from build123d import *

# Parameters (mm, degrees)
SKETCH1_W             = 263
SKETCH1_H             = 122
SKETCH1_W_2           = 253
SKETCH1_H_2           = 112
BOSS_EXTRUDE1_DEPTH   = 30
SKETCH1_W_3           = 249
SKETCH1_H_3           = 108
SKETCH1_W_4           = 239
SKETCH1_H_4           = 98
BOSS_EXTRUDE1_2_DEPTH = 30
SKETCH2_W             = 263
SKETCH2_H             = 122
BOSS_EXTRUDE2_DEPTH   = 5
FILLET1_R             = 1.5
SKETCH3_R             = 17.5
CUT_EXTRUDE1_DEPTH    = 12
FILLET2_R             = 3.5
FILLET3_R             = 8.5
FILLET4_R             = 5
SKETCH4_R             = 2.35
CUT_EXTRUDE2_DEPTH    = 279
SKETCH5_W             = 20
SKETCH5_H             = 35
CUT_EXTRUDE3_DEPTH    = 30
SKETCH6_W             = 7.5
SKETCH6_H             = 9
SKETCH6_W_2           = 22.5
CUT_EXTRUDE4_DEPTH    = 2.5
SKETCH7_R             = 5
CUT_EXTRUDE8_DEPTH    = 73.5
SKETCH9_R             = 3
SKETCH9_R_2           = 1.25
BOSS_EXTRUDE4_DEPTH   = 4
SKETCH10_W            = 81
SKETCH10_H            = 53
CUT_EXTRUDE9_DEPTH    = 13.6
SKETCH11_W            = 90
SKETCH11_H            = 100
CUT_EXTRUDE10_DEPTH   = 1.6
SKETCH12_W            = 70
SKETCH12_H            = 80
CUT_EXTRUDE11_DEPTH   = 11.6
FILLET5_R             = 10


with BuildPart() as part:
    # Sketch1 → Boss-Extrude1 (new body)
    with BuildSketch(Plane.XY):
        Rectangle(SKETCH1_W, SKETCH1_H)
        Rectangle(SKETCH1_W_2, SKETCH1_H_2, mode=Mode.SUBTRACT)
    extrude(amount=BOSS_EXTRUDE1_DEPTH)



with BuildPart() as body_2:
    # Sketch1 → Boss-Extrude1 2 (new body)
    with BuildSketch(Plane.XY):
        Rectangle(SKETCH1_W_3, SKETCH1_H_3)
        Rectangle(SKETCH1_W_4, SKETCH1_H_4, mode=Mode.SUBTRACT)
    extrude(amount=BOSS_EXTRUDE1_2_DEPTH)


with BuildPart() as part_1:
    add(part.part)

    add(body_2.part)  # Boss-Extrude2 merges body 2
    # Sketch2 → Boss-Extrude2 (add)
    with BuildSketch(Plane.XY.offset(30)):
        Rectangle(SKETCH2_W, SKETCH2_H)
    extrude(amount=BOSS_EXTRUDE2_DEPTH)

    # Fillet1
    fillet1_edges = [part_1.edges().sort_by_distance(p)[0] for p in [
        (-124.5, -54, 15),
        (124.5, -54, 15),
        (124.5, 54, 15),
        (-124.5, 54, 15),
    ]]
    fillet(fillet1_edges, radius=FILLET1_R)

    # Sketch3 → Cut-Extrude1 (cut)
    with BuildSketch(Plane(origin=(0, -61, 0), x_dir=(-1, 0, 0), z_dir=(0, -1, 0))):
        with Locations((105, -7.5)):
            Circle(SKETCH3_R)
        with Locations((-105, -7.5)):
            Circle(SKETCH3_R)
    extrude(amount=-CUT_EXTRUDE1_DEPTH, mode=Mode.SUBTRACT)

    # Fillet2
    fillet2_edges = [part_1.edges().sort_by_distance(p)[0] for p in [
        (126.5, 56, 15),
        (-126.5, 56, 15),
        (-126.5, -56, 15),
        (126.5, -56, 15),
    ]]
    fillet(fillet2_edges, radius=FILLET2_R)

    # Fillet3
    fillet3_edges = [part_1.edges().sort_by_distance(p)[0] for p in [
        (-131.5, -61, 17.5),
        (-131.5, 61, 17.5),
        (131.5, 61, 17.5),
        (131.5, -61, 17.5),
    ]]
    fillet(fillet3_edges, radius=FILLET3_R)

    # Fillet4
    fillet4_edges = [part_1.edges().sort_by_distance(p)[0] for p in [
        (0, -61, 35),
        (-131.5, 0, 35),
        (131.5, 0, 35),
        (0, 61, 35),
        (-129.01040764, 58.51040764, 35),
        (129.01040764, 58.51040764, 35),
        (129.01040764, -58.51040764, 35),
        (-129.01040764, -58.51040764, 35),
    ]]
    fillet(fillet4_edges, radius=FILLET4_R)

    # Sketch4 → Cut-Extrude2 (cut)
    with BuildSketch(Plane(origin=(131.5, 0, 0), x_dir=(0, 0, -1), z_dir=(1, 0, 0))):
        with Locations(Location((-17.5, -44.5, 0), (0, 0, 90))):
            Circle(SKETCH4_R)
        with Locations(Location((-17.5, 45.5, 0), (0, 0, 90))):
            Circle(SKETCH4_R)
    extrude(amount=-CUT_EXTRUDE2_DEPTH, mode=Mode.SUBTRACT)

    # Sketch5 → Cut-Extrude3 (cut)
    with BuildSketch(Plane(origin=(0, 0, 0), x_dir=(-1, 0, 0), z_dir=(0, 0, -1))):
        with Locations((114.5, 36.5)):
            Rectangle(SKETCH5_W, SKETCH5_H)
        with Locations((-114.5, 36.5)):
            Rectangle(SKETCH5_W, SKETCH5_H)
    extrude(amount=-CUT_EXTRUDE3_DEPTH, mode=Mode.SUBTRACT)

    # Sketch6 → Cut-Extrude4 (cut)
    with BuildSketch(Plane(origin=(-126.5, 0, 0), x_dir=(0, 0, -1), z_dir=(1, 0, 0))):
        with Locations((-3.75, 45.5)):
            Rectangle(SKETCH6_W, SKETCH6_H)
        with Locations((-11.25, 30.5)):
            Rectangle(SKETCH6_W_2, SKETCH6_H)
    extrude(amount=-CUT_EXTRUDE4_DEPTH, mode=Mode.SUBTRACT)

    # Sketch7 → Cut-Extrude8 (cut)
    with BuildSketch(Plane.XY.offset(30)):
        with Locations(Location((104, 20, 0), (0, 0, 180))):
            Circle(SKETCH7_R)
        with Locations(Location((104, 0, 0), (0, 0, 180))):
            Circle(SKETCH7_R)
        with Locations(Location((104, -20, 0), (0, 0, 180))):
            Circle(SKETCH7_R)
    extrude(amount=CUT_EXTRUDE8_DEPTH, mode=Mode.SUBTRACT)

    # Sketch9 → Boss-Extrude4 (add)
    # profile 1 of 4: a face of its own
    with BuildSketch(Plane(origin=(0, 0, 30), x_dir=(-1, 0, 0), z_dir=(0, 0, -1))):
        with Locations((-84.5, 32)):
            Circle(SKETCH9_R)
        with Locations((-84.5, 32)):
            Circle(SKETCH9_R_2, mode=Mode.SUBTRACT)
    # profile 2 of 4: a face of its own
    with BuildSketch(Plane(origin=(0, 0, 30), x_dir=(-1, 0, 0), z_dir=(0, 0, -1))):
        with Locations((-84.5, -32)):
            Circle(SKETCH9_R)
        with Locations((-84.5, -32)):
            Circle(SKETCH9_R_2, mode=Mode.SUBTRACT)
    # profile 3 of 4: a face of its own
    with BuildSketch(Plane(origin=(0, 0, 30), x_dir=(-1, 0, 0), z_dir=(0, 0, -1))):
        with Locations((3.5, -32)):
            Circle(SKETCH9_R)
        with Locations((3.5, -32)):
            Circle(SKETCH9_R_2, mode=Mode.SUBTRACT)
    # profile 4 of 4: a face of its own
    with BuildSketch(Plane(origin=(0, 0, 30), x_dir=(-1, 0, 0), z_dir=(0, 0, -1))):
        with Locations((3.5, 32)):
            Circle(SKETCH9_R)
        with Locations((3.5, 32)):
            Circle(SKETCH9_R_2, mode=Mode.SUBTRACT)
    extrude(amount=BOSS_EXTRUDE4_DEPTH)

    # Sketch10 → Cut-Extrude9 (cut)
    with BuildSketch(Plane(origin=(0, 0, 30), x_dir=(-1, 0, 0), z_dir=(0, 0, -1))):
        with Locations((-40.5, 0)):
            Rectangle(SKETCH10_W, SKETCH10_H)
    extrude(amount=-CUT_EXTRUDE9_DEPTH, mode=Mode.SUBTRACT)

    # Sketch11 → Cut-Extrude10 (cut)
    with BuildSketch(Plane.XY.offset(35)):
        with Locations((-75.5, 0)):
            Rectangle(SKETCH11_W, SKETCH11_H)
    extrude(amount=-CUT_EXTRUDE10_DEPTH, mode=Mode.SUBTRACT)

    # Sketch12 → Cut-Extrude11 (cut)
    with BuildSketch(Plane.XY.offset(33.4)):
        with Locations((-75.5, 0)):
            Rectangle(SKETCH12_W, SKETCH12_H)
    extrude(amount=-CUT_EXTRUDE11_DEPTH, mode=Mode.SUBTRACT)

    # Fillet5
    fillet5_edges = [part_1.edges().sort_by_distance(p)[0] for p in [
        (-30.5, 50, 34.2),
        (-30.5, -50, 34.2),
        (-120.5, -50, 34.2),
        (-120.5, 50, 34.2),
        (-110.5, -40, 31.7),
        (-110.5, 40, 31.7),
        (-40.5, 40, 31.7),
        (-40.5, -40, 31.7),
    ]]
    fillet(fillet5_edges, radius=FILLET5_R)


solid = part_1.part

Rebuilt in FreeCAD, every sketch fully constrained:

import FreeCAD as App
import Part
import Sketcher


def edges_at(feature, points):
    """Names of the edges that pass closest to the given points."""
    edges = feature.Shape.Edges
    near = lambda p: min(range(len(edges)), key=lambda i: edges[i].distToShape(Part.Vertex(*p))[0])
    return sorted({f"Edge{near(p) + 1}" for p in points})


def add_polygon(sketch, points):
    """Adds a closed chain of lines whose ends are joined by coincident constraints."""
    first, n = sketch.GeometryCount, len(points)
    for a, b in zip(points, points[1:] + points[:1]):
        sketch.addGeometry(Part.LineSegment(App.Vector(*a, 0), App.Vector(*b, 0)), False)
    for i in range(n):
        sketch.addConstraint(Sketcher.Constraint("Coincident", first + i, 2, first + (i + 1) % n, 1))

doc = App.newDocument("Part")
body = doc.addObject("PartDesign::Body", "Body")

# Sketch on XY plane
sketch1 = body.newObject("Sketcher::SketchObject", "Sketch")
sketch1.AttachmentSupport = (doc.getObject("XY_Plane"), [""])
sketch1.MapMode = "FlatFace"
add_polygon(sketch1, [(-132, 61), (-132, -61), (132, -61), (132, 61)])  # lines 0-3
add_polygon(sketch1, [(126, -56), (-126, -56), (-126, 56), (126, 56)])  # lines 4-7
sketch1.addConstraint([
    Sketcher.Constraint("Vertical", 0),
    Sketcher.Constraint("Horizontal", 1),
    Sketcher.Constraint("Vertical", 2),
    Sketcher.Constraint("Horizontal", 3),
    Sketcher.Constraint("Horizontal", 4),
    Sketcher.Constraint("Vertical", 5),
    Sketcher.Constraint("Horizontal", 6),
    Sketcher.Constraint("Vertical", 7),
    Sketcher.Constraint("Symmetric", 0, 2, 2, 2, -1, 1),
    Sketcher.Constraint("Symmetric", 4, 2, 6, 2, -1, 1),
    Sketcher.Constraint("DistanceX", 1, 1, 1, 2, 263.0),
    Sketcher.Constraint("DistanceX", 4, 2, 4, 1, 253.0),
    Sketcher.Constraint("DistanceY", 0, 2, 0, 1, 122.0),
    Sketcher.Constraint("DistanceY", 5, 1, 5, 2, 112.0),
])
pad1 = body.newObject("PartDesign::Pad", "Pad")
pad1.Profile = sketch1
pad1.Length = 30
body2 = doc.addObject("PartDesign::Body", "Body001")

# Sketch on XY plane
sketch2 = body2.newObject("Sketcher::SketchObject", "Sketch001")
sketch2.AttachmentSupport = (doc.getObject("XY_Plane001"), [""])
sketch2.MapMode = "FlatFace"
add_polygon(sketch2, [(-124, 54), (-124, -54), (124, -54), (124, 54)])  # lines 0-3
add_polygon(sketch2, [(120, -49), (-120, -49), (-120, 49), (120, 49)])  # lines 4-7
sketch2.addConstraint([
    Sketcher.Constraint("Vertical", 0),
    Sketcher.Constraint("Horizontal", 1),
    Sketcher.Constraint("Vertical", 2),
    Sketcher.Constraint("Horizontal", 3),
    Sketcher.Constraint("Horizontal", 4),
    Sketcher.Constraint("Vertical", 5),
    Sketcher.Constraint("Horizontal", 6),
    Sketcher.Constraint("Vertical", 7),
    Sketcher.Constraint("Symmetric", 0, 2, 2, 2, -1, 1),
    Sketcher.Constraint("Symmetric", 4, 2, 6, 2, -1, 1),
    Sketcher.Constraint("DistanceX", 1, 1, 1, 2, 249.0),
    Sketcher.Constraint("DistanceX", 4, 2, 4, 1, 239.0),
    Sketcher.Constraint("DistanceY", 0, 2, 0, 1, 108.0),
    Sketcher.Constraint("DistanceY", 5, 1, 5, 2, 98.0),
])
pad2 = body2.newObject("PartDesign::Pad", "Pad001")
pad2.Profile = sketch2
pad2.Length = 30
body.AllowCompound = True
doc.recompute()

boolean = body.newObject("PartDesign::Boolean", "Boolean")
boolean.Type = "Fuse"
boolean.addObjects([body2])

# Sketch on XY plane
sketch3 = body.newObject("Sketcher::SketchObject", "Sketch002")
sketch3.AttachmentSupport = (doc.getObject("XY_Plane"), [""])
sketch3.MapMode = "FlatFace"
sketch3.AttachmentOffset = App.Placement(App.Vector(0, 0, 30), App.Rotation())
add_polygon(sketch3, [(-132, 61), (-132, -61), (132, -61), (132, 61)])  # lines 0-3
sketch3.addConstraint([
    Sketcher.Constraint("Vertical", 0),
    Sketcher.Constraint("Horizontal", 1),
    Sketcher.Constraint("Vertical", 2),
    Sketcher.Constraint("Horizontal", 3),
    Sketcher.Constraint("Symmetric", 0, 2, 2, 2, -1, 1),
    Sketcher.Constraint("DistanceX", 1, 1, 1, 2, 263.0),
    Sketcher.Constraint("DistanceY", 0, 2, 0, 1, 122.0),
])
pad3 = body.newObject("PartDesign::Pad", "Pad002")
pad3.Profile = sketch3
pad3.Length = 5
doc.recompute()

fillet = body.newObject("PartDesign::Fillet", "Fillet")
fillet.Base = (pad3, edges_at(pad3, [
    (-124.5, -54, 15),
    (124.5, -54, 15),
    (124.5, 54, 15),
    (-124.5, 54, 15),
]))
fillet.Radius = 1.5

# Sketch on XZ plane
sketch4 = body.newObject("Sketcher::SketchObject", "Sketch003")
sketch4.AttachmentSupport = (doc.getObject("XZ_Plane"), [""])
sketch4.MapMode = "FlatFace"
sketch4.AttachmentOffset = App.Placement(App.Vector(0, 0, 61), App.Rotation())
sketch4.addGeometry([
    Part.Circle(App.Vector(-105, 8, 0), App.Vector(0, 0, 1), 18),
    Part.Circle(App.Vector(105, 8, 0), App.Vector(0, 0, 1), 18),
], False)
sketch4.addConstraint([
    Sketcher.Constraint("Equal", 0, 1),
    Sketcher.Constraint("Symmetric", 0, 3, 1, 3, -2),
    Sketcher.Constraint("Diameter", 0, 35.0),
    Sketcher.Constraint("DistanceX", 0, 3, -1, 1, 105.0),
    Sketcher.Constraint("DistanceY", -1, 1, 0, 3, 7.5),
])
pocket1 = body.newObject("PartDesign::Pocket", "Pocket")
pocket1.Profile = sketch4
pocket1.Length = 12
doc.recompute()

fillet2 = body.newObject("PartDesign::Fillet", "Fillet001")
fillet2.Base = (pocket1, edges_at(pocket1, [
    (126.5, 56, 15),
    (-126.5, 56, 15),
    (-126.5, -56, 15),
    (126.5, -56, 15),
]))
fillet2.Radius = 3.5
doc.recompute()

fillet3 = body.newObject("PartDesign::Fillet", "Fillet002")
fillet3.Base = (fillet2, edges_at(fillet2, [
    (-131.5, -61, 17.5),
    (-131.5, 61, 17.5),
    (131.5, 61, 17.5),
    (131.5, -61, 17.5),
]))
fillet3.Radius = 8.5
doc.recompute()

fillet4 = body.newObject("PartDesign::Fillet", "Fillet003")
fillet4.Base = (fillet3, edges_at(fillet3, [
    (0, -61, 35),
    (-131.5, 0, 35),
    (131.5, 0, 35),
    (0, 61, 35),
    (-129.01, 58.51, 35),
    (129.01, 58.51, 35),
    (129.01, -58.51, 35),
    (-129.01, -58.51, 35),
]))
fillet4.Radius = 5

# Sketch on YZ plane
sketch5 = body.newObject("Sketcher::SketchObject", "Sketch004")
sketch5.AttachmentSupport = (doc.getObject("YZ_Plane"), [""])
sketch5.MapMode = "FlatFace"
sketch5.AttachmentOffset = App.Placement(App.Vector(0, 0, 131.5), App.Rotation())
sketch5.addGeometry([
    Part.Circle(App.Vector(-44.5, 17.5, 0), App.Vector(0, 0, 1), 2.4),
    Part.Circle(App.Vector(45.5, 17.5, 0), App.Vector(0, 0, 1), 2.4),
], False)
sketch5.addConstraint([
    Sketcher.Constraint("Equal", 0, 1),
    Sketcher.Constraint("Horizontal", 0, 3, 1, 3),
    Sketcher.Constraint("Diameter", 0, 4.7),
    Sketcher.Constraint("DistanceX", 0, 3, 1, 3, 90.0),
    Sketcher.Constraint("DistanceX", 0, 3, -1, 1, 44.5),
    Sketcher.Constraint("DistanceY", -1, 1, 0, 3, 17.5),
])
pocket2 = body.newObject("PartDesign::Pocket", "Pocket001")
pocket2.Profile = sketch5
pocket2.Length = 279

# Sketch on XY plane
sketch6 = body.newObject("Sketcher::SketchObject", "Sketch005")
sketch6.AttachmentSupport = (doc.getObject("XY_Plane"), [""])
sketch6.MapMode = "FlatFace"
add_polygon(sketch6, [(-104, 54), (-104, 19), (-124, 19), (-124, 54)])  # lines 0-3
add_polygon(sketch6, [(124, 54), (124, 19), (104, 19), (104, 54)])  # lines 4-7
sketch6.addConstraint([
    Sketcher.Constraint("Vertical", 0),
    Sketcher.Constraint("Horizontal", 1),
    Sketcher.Constraint("Vertical", 2),
    Sketcher.Constraint("Horizontal", 3),
    Sketcher.Constraint("Vertical", 4),
    Sketcher.Constraint("Horizontal", 5),
    Sketcher.Constraint("Vertical", 6),
    Sketcher.Constraint("Horizontal", 7),
    Sketcher.Constraint("Symmetric", 1, 2, 4, 2, -2),
    Sketcher.Constraint("Symmetric", 3, 2, 6, 2, -2),
    Sketcher.Constraint("DistanceX", 1, 2, 1, 1, 20.0),
    Sketcher.Constraint("DistanceY", 0, 2, 0, 1, 35.0),
    Sketcher.Constraint("DistanceY", -1, 1, 0, 2, 19.0),
    Sketcher.Constraint("DistanceX", 0, 2, 4, 2, 229.0),
])
pocket3 = body.newObject("PartDesign::Pocket", "Pocket002")
pocket3.Profile = sketch6
pocket3.Length = 30
pocket3.Reversed = True

# Sketch on YZ plane
sketch7 = body.newObject("Sketcher::SketchObject", "Sketch006")
sketch7.AttachmentSupport = (doc.getObject("YZ_Plane"), [""])
sketch7.MapMode = "FlatFace"
sketch7.AttachmentOffset = App.Placement(App.Vector(0, 0, -126.5), App.Rotation())
add_polygon(sketch7, [(50, 8), (41, 8), (41, 0), (50, 0)])  # lines 0-3
add_polygon(sketch7, [(35, 22), (26, 22), (26, 0), (35, 0)])  # lines 4-7
sketch7.addConstraint([
    Sketcher.Constraint("Horizontal", 0),
    Sketcher.Constraint("Vertical", 1),
    Sketcher.Constraint("Horizontal", 2),
    Sketcher.Constraint("Vertical", 3),
    Sketcher.Constraint("Horizontal", 4),
    Sketcher.Constraint("Vertical", 5),
    Sketcher.Constraint("Horizontal", 6),
    Sketcher.Constraint("Vertical", 7),
    Sketcher.Constraint("PointOnObject", 1, 2, -1),
    Sketcher.Constraint("PointOnObject", 5, 2, -1),
    Sketcher.Constraint("Equal", 2, 4),
    Sketcher.Constraint("DistanceX", 0, 2, 0, 1, 9.0),
    Sketcher.Constraint("DistanceY", 1, 2, 1, 1, 7.5),
    Sketcher.Constraint("DistanceY", 5, 2, 5, 1, 22.5),
    Sketcher.Constraint("DistanceX", -1, 1, 0, 2, 41.0),
    Sketcher.Constraint("DistanceX", -1, 1, 4, 2, 26.0),
])
pocket4 = body.newObject("PartDesign::Pocket", "Pocket003")
pocket4.Profile = sketch7
pocket4.Length = 2.5

# Sketch on XY plane
sketch8 = body.newObject("Sketcher::SketchObject", "Sketch007")
sketch8.AttachmentSupport = (doc.getObject("XY_Plane"), [""])
sketch8.MapMode = "FlatFace"
sketch8.AttachmentOffset = App.Placement(App.Vector(0, 0, 30), App.Rotation())
sketch8.addGeometry([
    Part.Circle(App.Vector(104, 20, 0), App.Vector(0, 0, 1), 5),
    Part.Circle(App.Vector(104, 0, 0), App.Vector(0, 0, 1), 5),
    Part.Circle(App.Vector(104, -20, 0), App.Vector(0, 0, 1), 5),
], False)
sketch8.addConstraint([
    Sketcher.Constraint("Equal", 0, 1),
    Sketcher.Constraint("Equal", 1, 2),
    Sketcher.Constraint("Symmetric", 0, 3, 2, 3, -1),
    Sketcher.Constraint("PointOnObject", 1, 3, -1),
    Sketcher.Constraint("Vertical", 0, 3, 1, 3),
    Sketcher.Constraint("Diameter", 0, 10.0),
    Sketcher.Constraint("DistanceX", -1, 1, 0, 3, 104.0),
    Sketcher.Constraint("DistanceY", -1, 1, 0, 3, 20.0),
])
pocket5 = body.newObject("PartDesign::Pocket", "Pocket004")
pocket5.Profile = sketch8
pocket5.Length = 73.5
pocket5.Reversed = True

# Sketch on XY plane
sketch9 = body.newObject("Sketcher::SketchObject", "Sketch008")
sketch9.AttachmentSupport = (doc.getObject("XY_Plane"), [""])
sketch9.MapMode = "FlatFace"
sketch9.AttachmentOffset = App.Placement(App.Vector(0, 0, 30), App.Rotation())
sketch9.addGeometry([
    Part.Circle(App.Vector(84.5, 32, 0), App.Vector(0, 0, 1), 3),  # 0
    Part.Circle(App.Vector(84.5, 32, 0), App.Vector(0, 0, 1), 1.2),  # 1
    Part.Circle(App.Vector(84.5, -32, 0), App.Vector(0, 0, 1), 3),  # 2
    Part.Circle(App.Vector(84.5, -32, 0), App.Vector(0, 0, 1), 1.2),  # 3
    Part.Circle(App.Vector(-3.5, -32, 0), App.Vector(0, 0, 1), 3),  # 4
    Part.Circle(App.Vector(-3.5, -32, 0), App.Vector(0, 0, 1), 1.2),  # 5
    Part.Circle(App.Vector(-3.5, 32, 0), App.Vector(0, 0, 1), 3),  # 6
    Part.Circle(App.Vector(-3.5, 32, 0), App.Vector(0, 0, 1), 1.2),  # 7
], False)
sketch9.addConstraint([
    Sketcher.Constraint("Coincident", 1, 3, 0, 3),
    Sketcher.Constraint("Coincident", 3, 3, 2, 3),
    Sketcher.Constraint("Coincident", 5, 3, 4, 3),
    Sketcher.Constraint("Coincident", 7, 3, 6, 3),
    Sketcher.Constraint("Equal", 0, 2),
    Sketcher.Constraint("Equal", 1, 3),
    Sketcher.Constraint("Equal", 2, 4),
    Sketcher.Constraint("Equal", 3, 5),
    Sketcher.Constraint("Equal", 4, 6),
    Sketcher.Constraint("Equal", 5, 7),
    Sketcher.Constraint("Symmetric", 0, 3, 2, 3, -1),
    Sketcher.Constraint("Symmetric", 4, 3, 6, 3, -1),
    Sketcher.Constraint("Horizontal", 3, 3, 4, 3),
    Sketcher.Constraint("Diameter", 0, 6.0),
    Sketcher.Constraint("Diameter", 1, 2.5),
    Sketcher.Constraint("DistanceY", -1, 1, 0, 3, 32.0),
    Sketcher.Constraint("DistanceX", 4, 3, 2, 3, 88.0),
    Sketcher.Constraint("DistanceX", -1, 1, 0, 3, 84.5),
])
pad4 = body.newObject("PartDesign::Pad", "Pad003")
pad4.Profile = sketch9
pad4.Length = 4
pad4.Reversed = True

# Sketch on XY plane
sketch10 = body.newObject("Sketcher::SketchObject", "Sketch009")
sketch10.AttachmentSupport = (doc.getObject("XY_Plane"), [""])
sketch10.MapMode = "FlatFace"
sketch10.AttachmentOffset = App.Placement(App.Vector(0, 0, 30), App.Rotation())
add_polygon(sketch10, [(81, 26), (81, -26), (0, -26), (0, 26)])  # lines 0-3
sketch10.addConstraint([
    Sketcher.Constraint("Vertical", 0),
    Sketcher.Constraint("Horizontal", 1),
    Sketcher.Constraint("Vertical", 2),
    Sketcher.Constraint("Horizontal", 3),
    Sketcher.Constraint("Symmetric", 1, 2, 2, 2, -1, 1),
    Sketcher.Constraint("DistanceX", 1, 2, 1, 1, 81.0),
    Sketcher.Constraint("DistanceY", 0, 2, 0, 1, 53.0),
])
pocket6 = body.newObject("PartDesign::Pocket", "Pocket005")
pocket6.Profile = sketch10
pocket6.Length = 13.6
pocket6.Reversed = True

# Sketch on XY plane
sketch11 = body.newObject("Sketcher::SketchObject", "Sketch010")
sketch11.AttachmentSupport = (doc.getObject("XY_Plane"), [""])
sketch11.MapMode = "FlatFace"
sketch11.AttachmentOffset = App.Placement(App.Vector(0, 0, 35), App.Rotation())
add_polygon(sketch11, [(-120, 50), (-120, -50), (-30, -50), (-30, 50)])  # lines 0-3
sketch11.addConstraint([
    Sketcher.Constraint("Vertical", 0),
    Sketcher.Constraint("Horizontal", 1),
    Sketcher.Constraint("Vertical", 2),
    Sketcher.Constraint("Horizontal", 3),
    Sketcher.Constraint("DistanceX", 1, 1, 1, 2, 90.0),
    Sketcher.Constraint("DistanceY", 0, 2, 0, 1, 100.0),
    Sketcher.Constraint("DistanceY", 0, 2, -1, 1, 50.0),
    Sketcher.Constraint("DistanceX", 0, 2, -1, 1, 120.5),
])
pocket7 = body.newObject("PartDesign::Pocket", "Pocket006")
pocket7.Profile = sketch11
pocket7.Length = 1.6

# Sketch on XY plane
sketch12 = body.newObject("Sketcher::SketchObject", "Sketch011")
sketch12.AttachmentSupport = (doc.getObject("XY_Plane"), [""])
sketch12.MapMode = "FlatFace"
sketch12.AttachmentOffset = App.Placement(App.Vector(0, 0, 33.4), App.Rotation())
add_polygon(sketch12, [(-110, 40), (-110, -40), (-40, -40), (-40, 40)])  # lines 0-3
sketch12.addConstraint([
    Sketcher.Constraint("Vertical", 0),
    Sketcher.Constraint("Horizontal", 1),
    Sketcher.Constraint("Vertical", 2),
    Sketcher.Constraint("Horizontal", 3),
    Sketcher.Constraint("DistanceX", 1, 1, 1, 2, 70.0),
    Sketcher.Constraint("DistanceY", 0, 2, 0, 1, 80.0),
    Sketcher.Constraint("DistanceY", 0, 2, -1, 1, 40.0),
    Sketcher.Constraint("DistanceX", 0, 2, -1, 1, 110.5),
])
pocket8 = body.newObject("PartDesign::Pocket", "Pocket007")
pocket8.Profile = sketch12
pocket8.Length = 11.6
doc.recompute()

fillet5 = body.newObject("PartDesign::Fillet", "Fillet004")
fillet5.Base = (pocket8, edges_at(pocket8, [
    (-30.5, 50, 34.2),
    (-30.5, -50, 34.2),
    (-120.5, -50, 34.2),
    (-120.5, 50, 34.2),
    (-110.5, -40, 31.7),
    (-110.5, 40, 31.7),
    (-40.5, 40, 31.7),
    (-40.5, -40, 31.7),
]))
fillet5.Radius = 10

doc.recompute()
